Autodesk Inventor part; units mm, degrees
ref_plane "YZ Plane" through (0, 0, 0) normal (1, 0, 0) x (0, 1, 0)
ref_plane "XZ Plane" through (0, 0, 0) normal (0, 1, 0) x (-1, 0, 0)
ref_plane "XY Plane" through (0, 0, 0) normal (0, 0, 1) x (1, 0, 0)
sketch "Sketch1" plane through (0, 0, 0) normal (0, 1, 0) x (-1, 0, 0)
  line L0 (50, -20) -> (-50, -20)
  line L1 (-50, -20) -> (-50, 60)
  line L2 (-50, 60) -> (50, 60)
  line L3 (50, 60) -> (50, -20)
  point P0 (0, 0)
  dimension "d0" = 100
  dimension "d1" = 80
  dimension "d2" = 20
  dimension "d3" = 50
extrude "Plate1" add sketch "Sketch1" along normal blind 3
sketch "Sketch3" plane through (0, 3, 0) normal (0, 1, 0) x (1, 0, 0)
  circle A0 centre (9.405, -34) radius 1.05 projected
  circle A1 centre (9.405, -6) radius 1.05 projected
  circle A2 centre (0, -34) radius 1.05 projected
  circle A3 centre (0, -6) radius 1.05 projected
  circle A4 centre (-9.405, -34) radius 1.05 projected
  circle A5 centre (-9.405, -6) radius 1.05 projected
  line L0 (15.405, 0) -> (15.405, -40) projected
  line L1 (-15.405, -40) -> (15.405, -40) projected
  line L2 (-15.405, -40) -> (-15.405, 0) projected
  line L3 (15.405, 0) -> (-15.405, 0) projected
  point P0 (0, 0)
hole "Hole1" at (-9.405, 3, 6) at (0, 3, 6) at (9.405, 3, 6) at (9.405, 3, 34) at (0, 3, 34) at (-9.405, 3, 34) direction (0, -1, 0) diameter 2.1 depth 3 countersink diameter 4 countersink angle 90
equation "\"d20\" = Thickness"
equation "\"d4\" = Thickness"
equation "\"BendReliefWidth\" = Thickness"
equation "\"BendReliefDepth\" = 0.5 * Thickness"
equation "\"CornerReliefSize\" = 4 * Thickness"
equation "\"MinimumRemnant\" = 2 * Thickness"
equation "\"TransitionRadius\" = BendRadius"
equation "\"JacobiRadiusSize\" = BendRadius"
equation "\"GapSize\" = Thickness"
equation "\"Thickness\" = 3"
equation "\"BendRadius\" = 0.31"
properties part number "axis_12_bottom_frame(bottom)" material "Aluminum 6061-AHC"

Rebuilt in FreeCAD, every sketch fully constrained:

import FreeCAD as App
import Part
import Sketcher

V = App.Vector

doc = App.newDocument("Part")
body = doc.addObject("PartDesign::Body", "Body")

sketch1 = doc.addObject("Sketcher::SketchObject", "Sketch")
body.addObject(sketch1)
sketch1.AttachmentSupport = (doc.XZ_Plane, [""])
sketch1.MapMode = "FlatFace"
sketch1.addGeometry(Part.LineSegment(V(50, -20, 0), V(-50, -20, 0)), False)
sketch1.addGeometry(Part.LineSegment(V(-50, -20, 0), V(-50, 60, 0)), False)
sketch1.addGeometry(Part.LineSegment(V(-50, 60, 0), V(50, 60, 0)), False)
sketch1.addGeometry(Part.LineSegment(V(50, 60, 0), V(50, -20, 0)), False)
sketch1.addConstraint(Sketcher.Constraint("Coincident", 0, 2, 1, 1))
sketch1.addConstraint(Sketcher.Constraint("Coincident", 1, 2, 2, 1))
sketch1.addConstraint(Sketcher.Constraint("Coincident", 2, 2, 3, 1))
sketch1.addConstraint(Sketcher.Constraint("Coincident", 3, 2, 0, 1))
sketch1.addConstraint(Sketcher.Constraint("Horizontal", 0))
sketch1.addConstraint(Sketcher.Constraint("Vertical", 1))
sketch1.addConstraint(Sketcher.Constraint("Horizontal", 2))
sketch1.addConstraint(Sketcher.Constraint("Vertical", 3))
sketch1.addConstraint(Sketcher.Constraint("DistanceX", 0, 2, 0, 1, 100.0))
sketch1.addConstraint(Sketcher.Constraint("DistanceY", 1, 1, 1, 2, 80.0))
sketch1.addConstraint(Sketcher.Constraint("DistanceX", 0, 2, -1, 1, 50.0))
sketch1.addConstraint(Sketcher.Constraint("DistanceY", 0, 2, -1, 1, 20.0))
pad1 = doc.addObject("PartDesign::Pad", "Pad")
body.addObject(pad1)
pad1.Profile = sketch1
pad1.Length = 3
pad1.Reversed = True

sketch2 = doc.addObject("Sketcher::SketchObject", "Sketch001")
body.addObject(sketch2)
sketch2.AttachmentSupport = (doc.XZ_Plane, [""])
sketch2.MapMode = "FlatFace"
sketch2.AttachmentOffset = App.Placement(V(0, 0, -3), App.Rotation())
sketch2.addGeometry(Part.Circle(V(-9.405, 6, 0), V(0, 0, 1), 1.05), False)
sketch2.addGeometry(Part.Circle(V(0, 6, 0), V(0, 0, 1), 1.05), False)
sketch2.addGeometry(Part.Circle(V(9.405, 6, 0), V(0, 0, 1), 1.05), False)
sketch2.addGeometry(Part.Circle(V(9.405, 34, 0), V(0, 0, 1), 1.05), False)
sketch2.addGeometry(Part.Circle(V(0, 34, 0), V(0, 0, 1), 1.05), False)
sketch2.addGeometry(Part.Circle(V(-9.405, 34, 0), V(0, 0, 1), 1.05), False)
sketch2.addConstraint(Sketcher.Constraint("Equal", 0, 1))
sketch2.addConstraint(Sketcher.Constraint("Equal", 1, 2))
sketch2.addConstraint(Sketcher.Constraint("Equal", 2, 3))
sketch2.addConstraint(Sketcher.Constraint("Equal", 3, 4))
sketch2.addConstraint(Sketcher.Constraint("Equal", 4, 5))
sketch2.addConstraint(Sketcher.Constraint("Symmetric", 0, 3, 2, 3, -2))
sketch2.addConstraint(Sketcher.Constraint("Symmetric", 3, 3, 5, 3, -2))
sketch2.addConstraint(Sketcher.Constraint("PointOnObject", 1, 3, -2))
sketch2.addConstraint(Sketcher.Constraint("PointOnObject", 4, 3, -2))
sketch2.addConstraint(Sketcher.Constraint("Horizontal", 0, 3, 1, 3))
sketch2.addConstraint(Sketcher.Constraint("Horizontal", 3, 3, 4, 3))
sketch2.addConstraint(Sketcher.Constraint("Vertical", 2, 3, 3, 3))
sketch2.addConstraint(Sketcher.Constraint("Diameter", 0, 2.1))
sketch2.addConstraint(Sketcher.Constraint("DistanceY", -1, 1, 0, 3, 6.0))
sketch2.addConstraint(Sketcher.Constraint("DistanceY", -1, 1, 3, 3, 34.0))
sketch2.addConstraint(Sketcher.Constraint("DistanceX", 0, 3, 2, 3, 18.81))
doc.recompute()
hole = doc.addObject("PartDesign::Hole", "Hole")
body.addObject(hole)
hole.Profile = sketch2
hole.ThreadType = "None"
hole.Diameter = 2.1
hole.DepthType = "Dimension"
hole.Depth = 3
hole.DrillPoint = "Flat"
hole.HoleCutType = "Countersink"
hole.HoleCutDiameter = 4
hole.HoleCutCountersinkAngle = 90
hole.Reversed = True

doc.recompute()
